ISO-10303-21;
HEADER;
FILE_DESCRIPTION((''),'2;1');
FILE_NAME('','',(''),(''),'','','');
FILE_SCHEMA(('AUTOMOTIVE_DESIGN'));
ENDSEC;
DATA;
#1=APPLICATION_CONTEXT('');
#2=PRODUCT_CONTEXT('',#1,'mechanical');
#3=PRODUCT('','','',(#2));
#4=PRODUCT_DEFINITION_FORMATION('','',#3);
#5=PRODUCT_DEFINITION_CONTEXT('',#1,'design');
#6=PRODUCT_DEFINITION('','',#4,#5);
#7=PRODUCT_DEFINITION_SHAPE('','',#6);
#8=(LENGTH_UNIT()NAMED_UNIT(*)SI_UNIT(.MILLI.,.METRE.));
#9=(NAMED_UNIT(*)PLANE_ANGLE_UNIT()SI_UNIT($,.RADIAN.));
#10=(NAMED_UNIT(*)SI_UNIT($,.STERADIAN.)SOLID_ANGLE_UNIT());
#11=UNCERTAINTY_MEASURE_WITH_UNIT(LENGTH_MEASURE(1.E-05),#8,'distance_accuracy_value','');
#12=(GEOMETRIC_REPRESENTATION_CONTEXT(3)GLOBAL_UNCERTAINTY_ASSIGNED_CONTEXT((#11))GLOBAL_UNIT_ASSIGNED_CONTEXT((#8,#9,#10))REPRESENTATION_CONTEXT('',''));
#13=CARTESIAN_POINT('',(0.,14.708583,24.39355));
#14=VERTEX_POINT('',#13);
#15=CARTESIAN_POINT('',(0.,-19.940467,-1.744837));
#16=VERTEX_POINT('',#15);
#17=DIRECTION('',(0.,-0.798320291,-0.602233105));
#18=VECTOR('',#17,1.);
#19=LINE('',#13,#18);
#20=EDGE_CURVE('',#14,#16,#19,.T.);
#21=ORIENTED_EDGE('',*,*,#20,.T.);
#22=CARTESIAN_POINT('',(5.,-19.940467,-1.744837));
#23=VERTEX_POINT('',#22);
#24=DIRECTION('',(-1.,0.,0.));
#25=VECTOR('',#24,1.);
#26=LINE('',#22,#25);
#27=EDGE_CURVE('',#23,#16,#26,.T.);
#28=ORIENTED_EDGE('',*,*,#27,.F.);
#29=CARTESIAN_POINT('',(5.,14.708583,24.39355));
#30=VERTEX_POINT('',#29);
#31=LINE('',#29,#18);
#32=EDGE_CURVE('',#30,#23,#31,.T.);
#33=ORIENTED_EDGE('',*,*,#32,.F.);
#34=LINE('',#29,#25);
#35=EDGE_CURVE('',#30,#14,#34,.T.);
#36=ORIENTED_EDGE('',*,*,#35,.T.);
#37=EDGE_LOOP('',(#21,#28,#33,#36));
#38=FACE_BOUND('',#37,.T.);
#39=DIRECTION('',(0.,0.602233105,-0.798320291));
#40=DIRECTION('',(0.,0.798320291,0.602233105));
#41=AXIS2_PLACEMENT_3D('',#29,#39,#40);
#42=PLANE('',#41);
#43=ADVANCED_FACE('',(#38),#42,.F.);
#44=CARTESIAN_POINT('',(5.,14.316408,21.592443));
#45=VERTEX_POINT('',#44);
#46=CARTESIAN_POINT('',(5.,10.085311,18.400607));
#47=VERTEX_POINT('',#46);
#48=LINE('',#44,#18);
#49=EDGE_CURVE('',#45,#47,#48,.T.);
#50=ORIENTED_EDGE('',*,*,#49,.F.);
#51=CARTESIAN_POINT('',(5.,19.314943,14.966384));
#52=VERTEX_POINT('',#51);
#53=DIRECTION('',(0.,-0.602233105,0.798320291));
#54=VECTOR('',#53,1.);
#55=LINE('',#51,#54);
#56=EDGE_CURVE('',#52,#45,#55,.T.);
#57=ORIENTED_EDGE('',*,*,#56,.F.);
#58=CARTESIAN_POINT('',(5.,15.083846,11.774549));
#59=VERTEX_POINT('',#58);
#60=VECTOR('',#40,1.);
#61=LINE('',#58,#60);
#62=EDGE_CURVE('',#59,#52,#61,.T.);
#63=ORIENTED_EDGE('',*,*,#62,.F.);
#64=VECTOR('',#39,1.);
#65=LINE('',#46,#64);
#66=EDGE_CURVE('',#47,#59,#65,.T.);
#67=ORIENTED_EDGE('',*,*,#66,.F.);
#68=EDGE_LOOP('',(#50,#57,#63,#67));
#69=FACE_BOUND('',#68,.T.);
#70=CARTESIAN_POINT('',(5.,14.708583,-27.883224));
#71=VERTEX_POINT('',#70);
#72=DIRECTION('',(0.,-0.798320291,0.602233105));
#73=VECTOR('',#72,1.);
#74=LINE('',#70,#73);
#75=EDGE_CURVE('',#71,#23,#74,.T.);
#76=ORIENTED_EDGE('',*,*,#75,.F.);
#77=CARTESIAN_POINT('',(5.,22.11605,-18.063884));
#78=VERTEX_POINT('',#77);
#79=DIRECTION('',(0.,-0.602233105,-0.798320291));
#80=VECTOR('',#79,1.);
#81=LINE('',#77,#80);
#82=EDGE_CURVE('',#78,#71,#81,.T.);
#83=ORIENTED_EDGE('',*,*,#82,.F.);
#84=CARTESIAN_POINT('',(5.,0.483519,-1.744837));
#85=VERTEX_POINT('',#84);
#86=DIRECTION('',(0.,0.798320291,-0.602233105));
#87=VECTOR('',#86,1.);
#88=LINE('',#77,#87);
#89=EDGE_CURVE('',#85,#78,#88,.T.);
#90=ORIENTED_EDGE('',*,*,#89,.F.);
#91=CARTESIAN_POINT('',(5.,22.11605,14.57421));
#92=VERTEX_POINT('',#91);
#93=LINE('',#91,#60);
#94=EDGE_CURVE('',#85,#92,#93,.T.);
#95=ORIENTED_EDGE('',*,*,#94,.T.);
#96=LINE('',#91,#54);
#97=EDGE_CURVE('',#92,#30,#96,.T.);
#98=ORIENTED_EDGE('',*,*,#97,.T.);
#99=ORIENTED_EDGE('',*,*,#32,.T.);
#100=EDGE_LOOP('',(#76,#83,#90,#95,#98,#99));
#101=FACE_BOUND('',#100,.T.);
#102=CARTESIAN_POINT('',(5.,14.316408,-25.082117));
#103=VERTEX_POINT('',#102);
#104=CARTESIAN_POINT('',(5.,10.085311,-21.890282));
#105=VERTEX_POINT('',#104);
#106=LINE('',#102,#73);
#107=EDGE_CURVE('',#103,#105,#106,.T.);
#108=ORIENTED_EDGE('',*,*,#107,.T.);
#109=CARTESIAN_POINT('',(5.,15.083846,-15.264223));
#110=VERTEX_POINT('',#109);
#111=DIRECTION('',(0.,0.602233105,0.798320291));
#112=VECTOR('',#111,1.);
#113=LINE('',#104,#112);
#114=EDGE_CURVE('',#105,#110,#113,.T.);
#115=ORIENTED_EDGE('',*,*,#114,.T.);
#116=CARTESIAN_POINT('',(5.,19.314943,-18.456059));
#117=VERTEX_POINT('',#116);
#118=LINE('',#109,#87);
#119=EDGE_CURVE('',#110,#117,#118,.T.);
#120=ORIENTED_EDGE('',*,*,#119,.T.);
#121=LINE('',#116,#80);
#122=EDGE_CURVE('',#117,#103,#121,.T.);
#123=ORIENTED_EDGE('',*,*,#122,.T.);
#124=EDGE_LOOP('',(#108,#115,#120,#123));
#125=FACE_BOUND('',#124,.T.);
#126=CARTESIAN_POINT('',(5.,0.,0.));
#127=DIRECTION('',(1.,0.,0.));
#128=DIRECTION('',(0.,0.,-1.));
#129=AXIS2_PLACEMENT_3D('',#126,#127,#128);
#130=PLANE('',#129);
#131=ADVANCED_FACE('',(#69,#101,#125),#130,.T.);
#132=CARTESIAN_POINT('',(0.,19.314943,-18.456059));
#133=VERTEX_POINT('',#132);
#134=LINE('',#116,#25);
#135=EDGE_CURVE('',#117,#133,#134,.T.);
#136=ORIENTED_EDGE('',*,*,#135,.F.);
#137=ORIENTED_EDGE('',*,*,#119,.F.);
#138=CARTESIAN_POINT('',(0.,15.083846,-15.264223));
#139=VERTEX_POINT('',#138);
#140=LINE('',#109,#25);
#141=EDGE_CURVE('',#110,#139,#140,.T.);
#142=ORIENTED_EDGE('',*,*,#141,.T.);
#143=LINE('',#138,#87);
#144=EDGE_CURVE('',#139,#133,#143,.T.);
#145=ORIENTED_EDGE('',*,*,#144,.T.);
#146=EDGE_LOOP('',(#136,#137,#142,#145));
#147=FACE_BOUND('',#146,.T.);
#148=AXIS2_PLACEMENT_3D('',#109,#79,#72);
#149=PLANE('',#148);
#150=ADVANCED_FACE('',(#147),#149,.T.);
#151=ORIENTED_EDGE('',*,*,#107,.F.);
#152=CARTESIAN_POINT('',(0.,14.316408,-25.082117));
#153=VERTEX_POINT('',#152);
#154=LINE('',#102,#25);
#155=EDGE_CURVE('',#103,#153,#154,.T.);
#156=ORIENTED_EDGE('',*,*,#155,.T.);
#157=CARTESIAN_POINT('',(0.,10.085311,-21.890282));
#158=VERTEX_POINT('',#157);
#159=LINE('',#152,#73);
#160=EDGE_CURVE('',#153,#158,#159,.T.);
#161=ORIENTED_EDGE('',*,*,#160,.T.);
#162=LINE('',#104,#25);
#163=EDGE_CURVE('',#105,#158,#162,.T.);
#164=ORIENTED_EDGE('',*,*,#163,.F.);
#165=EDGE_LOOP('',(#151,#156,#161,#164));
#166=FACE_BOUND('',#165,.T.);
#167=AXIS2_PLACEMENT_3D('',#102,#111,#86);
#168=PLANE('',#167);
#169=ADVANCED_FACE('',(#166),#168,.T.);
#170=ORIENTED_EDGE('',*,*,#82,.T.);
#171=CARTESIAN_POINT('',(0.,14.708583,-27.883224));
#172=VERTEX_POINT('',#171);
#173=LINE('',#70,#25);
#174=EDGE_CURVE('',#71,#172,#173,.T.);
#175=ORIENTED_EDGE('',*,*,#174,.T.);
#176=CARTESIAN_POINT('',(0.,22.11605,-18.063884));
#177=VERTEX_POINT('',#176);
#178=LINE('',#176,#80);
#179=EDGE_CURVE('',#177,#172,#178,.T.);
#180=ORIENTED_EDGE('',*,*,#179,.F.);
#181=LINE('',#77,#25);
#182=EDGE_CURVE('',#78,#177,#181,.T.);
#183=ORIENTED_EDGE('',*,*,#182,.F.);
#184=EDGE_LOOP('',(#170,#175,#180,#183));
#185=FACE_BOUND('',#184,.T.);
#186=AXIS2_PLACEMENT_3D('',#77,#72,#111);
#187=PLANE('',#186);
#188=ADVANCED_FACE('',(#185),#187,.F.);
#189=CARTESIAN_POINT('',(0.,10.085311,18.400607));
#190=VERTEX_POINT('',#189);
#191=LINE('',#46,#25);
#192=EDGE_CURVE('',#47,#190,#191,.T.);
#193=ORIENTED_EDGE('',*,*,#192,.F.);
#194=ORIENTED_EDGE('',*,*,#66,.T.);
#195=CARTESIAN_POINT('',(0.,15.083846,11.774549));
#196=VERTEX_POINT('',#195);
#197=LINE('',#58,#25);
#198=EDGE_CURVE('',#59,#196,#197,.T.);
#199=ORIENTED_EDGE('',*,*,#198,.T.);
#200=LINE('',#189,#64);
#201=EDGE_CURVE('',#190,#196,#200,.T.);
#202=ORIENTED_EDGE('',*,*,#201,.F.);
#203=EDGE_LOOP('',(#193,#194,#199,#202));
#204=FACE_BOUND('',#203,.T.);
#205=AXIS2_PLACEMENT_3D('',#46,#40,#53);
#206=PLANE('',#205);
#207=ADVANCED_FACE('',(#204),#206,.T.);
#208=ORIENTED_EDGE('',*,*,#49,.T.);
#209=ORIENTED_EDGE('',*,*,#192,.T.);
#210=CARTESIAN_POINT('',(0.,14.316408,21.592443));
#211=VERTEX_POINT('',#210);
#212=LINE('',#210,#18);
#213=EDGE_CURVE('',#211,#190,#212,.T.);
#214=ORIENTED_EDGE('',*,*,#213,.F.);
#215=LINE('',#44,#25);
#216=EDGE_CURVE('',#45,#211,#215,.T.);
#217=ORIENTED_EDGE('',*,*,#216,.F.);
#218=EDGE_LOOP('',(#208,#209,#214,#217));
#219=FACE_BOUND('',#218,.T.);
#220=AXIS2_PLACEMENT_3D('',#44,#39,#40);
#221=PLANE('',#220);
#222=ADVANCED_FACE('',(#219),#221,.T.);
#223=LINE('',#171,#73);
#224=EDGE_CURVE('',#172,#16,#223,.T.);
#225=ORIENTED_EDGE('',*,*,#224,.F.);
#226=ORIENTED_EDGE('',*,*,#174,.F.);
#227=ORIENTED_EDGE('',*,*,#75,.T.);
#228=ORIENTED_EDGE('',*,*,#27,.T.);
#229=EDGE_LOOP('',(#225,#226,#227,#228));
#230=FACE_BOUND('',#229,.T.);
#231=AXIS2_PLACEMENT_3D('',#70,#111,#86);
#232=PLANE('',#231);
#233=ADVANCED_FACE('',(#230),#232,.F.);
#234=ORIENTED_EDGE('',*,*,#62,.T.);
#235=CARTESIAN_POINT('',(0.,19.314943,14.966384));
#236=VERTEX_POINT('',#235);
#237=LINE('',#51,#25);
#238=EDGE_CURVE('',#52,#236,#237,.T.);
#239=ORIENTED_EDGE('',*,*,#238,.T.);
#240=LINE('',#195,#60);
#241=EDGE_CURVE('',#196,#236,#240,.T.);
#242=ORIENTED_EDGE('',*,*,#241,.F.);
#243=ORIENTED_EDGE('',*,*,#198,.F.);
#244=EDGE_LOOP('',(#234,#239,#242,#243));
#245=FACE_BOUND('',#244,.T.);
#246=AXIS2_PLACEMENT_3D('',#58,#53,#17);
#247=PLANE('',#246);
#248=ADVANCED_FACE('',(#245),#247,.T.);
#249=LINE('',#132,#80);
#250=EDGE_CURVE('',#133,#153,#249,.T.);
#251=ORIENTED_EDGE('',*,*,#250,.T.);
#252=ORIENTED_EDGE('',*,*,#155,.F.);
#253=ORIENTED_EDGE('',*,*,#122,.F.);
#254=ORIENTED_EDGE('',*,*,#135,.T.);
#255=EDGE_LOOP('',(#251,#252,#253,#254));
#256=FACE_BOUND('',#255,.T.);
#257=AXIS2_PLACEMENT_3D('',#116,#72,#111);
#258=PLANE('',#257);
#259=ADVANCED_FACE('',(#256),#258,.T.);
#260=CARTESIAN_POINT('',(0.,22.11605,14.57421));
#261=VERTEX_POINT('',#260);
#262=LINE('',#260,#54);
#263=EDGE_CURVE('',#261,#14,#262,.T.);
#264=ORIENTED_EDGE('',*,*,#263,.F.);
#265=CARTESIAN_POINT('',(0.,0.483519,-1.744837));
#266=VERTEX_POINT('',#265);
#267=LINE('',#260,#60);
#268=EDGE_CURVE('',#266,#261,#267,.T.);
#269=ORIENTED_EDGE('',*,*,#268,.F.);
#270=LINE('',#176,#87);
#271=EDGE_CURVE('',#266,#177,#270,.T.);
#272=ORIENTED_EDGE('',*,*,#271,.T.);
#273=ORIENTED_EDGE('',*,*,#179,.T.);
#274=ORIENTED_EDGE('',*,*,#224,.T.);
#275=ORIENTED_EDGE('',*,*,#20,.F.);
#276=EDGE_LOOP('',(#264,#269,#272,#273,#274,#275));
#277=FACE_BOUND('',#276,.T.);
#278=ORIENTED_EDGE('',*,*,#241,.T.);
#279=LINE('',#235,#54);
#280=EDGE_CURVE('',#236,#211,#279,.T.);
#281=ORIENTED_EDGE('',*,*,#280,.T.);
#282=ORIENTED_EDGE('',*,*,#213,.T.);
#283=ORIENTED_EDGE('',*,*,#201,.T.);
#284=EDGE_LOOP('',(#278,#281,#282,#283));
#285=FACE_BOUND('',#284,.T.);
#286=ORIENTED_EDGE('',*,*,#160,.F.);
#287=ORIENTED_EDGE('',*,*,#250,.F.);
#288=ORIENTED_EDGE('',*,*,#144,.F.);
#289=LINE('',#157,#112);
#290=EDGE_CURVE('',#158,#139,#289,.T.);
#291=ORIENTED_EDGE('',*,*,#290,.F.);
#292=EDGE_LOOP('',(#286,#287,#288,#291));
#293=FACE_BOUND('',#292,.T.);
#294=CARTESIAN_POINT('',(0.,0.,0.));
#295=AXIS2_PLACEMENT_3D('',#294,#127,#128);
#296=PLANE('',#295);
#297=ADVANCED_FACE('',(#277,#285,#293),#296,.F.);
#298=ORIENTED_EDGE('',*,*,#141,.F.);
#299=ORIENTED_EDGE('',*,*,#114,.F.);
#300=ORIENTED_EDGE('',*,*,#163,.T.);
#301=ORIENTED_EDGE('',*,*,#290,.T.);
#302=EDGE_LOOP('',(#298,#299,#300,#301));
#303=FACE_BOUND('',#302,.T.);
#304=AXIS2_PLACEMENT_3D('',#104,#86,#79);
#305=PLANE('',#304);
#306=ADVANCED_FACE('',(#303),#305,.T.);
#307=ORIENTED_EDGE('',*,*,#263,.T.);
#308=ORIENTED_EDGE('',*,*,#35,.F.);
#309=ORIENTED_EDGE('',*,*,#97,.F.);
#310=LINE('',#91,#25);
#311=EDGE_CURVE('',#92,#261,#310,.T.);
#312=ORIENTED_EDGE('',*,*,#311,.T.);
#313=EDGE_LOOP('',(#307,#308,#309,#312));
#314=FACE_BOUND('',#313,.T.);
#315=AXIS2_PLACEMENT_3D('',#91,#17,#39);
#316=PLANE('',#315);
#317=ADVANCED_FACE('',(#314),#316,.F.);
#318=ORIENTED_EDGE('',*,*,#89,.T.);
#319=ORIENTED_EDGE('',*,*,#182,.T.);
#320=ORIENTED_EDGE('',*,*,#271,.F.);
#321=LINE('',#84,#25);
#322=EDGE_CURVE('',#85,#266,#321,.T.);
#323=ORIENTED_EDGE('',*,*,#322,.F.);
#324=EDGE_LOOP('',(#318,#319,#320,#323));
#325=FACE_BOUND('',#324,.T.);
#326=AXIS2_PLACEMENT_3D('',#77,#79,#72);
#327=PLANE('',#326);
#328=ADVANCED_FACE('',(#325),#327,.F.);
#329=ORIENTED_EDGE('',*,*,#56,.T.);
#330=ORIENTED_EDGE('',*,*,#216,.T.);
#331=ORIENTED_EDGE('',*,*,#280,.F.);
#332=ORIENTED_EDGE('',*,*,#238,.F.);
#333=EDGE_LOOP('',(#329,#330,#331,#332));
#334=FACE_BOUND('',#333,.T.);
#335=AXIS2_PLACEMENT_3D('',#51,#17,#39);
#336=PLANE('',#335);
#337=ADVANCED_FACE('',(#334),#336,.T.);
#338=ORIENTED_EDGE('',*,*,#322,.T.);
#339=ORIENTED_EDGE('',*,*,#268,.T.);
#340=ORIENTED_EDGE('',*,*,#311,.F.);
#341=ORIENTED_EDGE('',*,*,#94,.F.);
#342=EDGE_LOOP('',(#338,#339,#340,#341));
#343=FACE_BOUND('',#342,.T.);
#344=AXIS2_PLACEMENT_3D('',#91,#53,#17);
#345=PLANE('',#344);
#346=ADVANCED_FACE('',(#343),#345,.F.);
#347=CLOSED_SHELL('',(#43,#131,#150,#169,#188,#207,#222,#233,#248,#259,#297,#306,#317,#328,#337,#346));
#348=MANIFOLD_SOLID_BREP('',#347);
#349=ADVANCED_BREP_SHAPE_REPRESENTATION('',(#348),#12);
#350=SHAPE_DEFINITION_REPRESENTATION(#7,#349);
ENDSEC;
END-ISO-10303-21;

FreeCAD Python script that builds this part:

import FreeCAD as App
import Part
import Sketcher
Q = App.Units.Quantity

doc = App.newDocument("Part")
body = doc.addObject("PartDesign::Body", "Body")

# Sketch on YZ plane
sketch1 = body.newObject("Sketcher::SketchObject", "Sketch")
sketch1.AttachmentSupport = (doc.getObject("YZ_Plane"), [""])
sketch1.MapMode = "FlatFace"
sketch1.addGeometry(Part.LineSegment(App.Vector(0, -2, 0), App.Vector(22, 15, 0)), False)
sketch1.addGeometry(Part.LineSegment(App.Vector(22, 15, 0), App.Vector(15, 24, 0)), False)
sketch1.addGeometry(Part.LineSegment(App.Vector(15, 24, 0), App.Vector(-20, -2, 0)), False)
sketch1.addGeometry(Part.LineSegment(App.Vector(-20, -2, 0), App.Vector(0, -2, 0)), False)
sketch1.addConstraint(Sketcher.Constraint("Coincident", 0, 2, 1, 1))
sketch1.addConstraint(Sketcher.Constraint("Coincident", 1, 2, 2, 1))
sketch1.addConstraint(Sketcher.Constraint("Coincident", 2, 2, 3, 1))
sketch1.addConstraint(Sketcher.Constraint("Coincident", 3, 2, 0, 1))
sketch1.addConstraint(Sketcher.Constraint("Horizontal", 3))
sketch1.addConstraint(Sketcher.Constraint("Perpendicular", 0, 1))
sketch1.addConstraint(Sketcher.Constraint("Perpendicular", 1, 2))
sketch1.addConstraint(Sketcher.Constraint("Distance", 1, Q("12.3 mm")))
sketch1.addConstraint(Sketcher.Constraint("Angle", 0, Q("37.03 deg")))
sketch1.addConstraint(Sketcher.Constraint("Distance", 0, Q("27.097559 mm")))
sketch1.addConstraint(Sketcher.Constraint("DistanceX", -1, 1, 0, 2, Q("22.11605 mm")))
sketch1.addConstraint(Sketcher.Constraint("DistanceY", -1, 1, 0, 2, Q("14.57421 mm")))
pad1 = body.newObject("PartDesign::Pad", "Pad")
pad1.Profile = sketch1
pad1.Length = 5

# Sketch on YZ plane
sketch2 = body.newObject("Sketcher::SketchObject", "Sketch001")
sketch2.AttachmentSupport = (doc.getObject("YZ_Plane"), [""])
sketch2.MapMode = "FlatFace"
sketch2.addGeometry(Part.LineSegment(App.Vector(10, 18, 0), App.Vector(15, 12, 0)), False)
sketch2.addGeometry(Part.LineSegment(App.Vector(15, 12, 0), App.Vector(19, 15, 0)), False)
sketch2.addGeometry(Part.LineSegment(App.Vector(19, 15, 0), App.Vector(14, 22, 0)), False)
sketch2.addGeometry(Part.LineSegment(App.Vector(14, 22, 0), App.Vector(10, 18, 0)), False)
sketch2.addConstraint(Sketcher.Constraint("Coincident", 0, 2, 1, 1))
sketch2.addConstraint(Sketcher.Constraint("Coincident", 1, 2, 2, 1))
sketch2.addConstraint(Sketcher.Constraint("Coincident", 2, 2, 3, 1))
sketch2.addConstraint(Sketcher.Constraint("Coincident", 3, 2, 0, 1))
sketch2.addConstraint(Sketcher.Constraint("Perpendicular", 0, 1))
sketch2.addConstraint(Sketcher.Constraint("Perpendicular", 1, 2))
sketch2.addConstraint(Sketcher.Constraint("Perpendicular", 2, 3))
sketch2.addConstraint(Sketcher.Constraint("Distance", 0, Q("8.3 mm")))
sketch2.addConstraint(Sketcher.Constraint("Distance", 1, Q("5.3 mm")))
sketch2.addConstraint(Sketcher.Constraint("Angle", 0, Q("-52.97 deg")))
sketch2.addConstraint(Sketcher.Constraint("DistanceY", -1, 1, 0, 2, Q("11.774549 mm")))
sketch2.addConstraint(Sketcher.Constraint("DistanceX", -1, 1, 2, 2, Q("14.316408 mm")))
pocket1 = body.newObject("PartDesign::Pocket", "Pocket")
pocket1.Profile = sketch2
pocket1.Length = 5
pocket1.Reversed = True
body2 = doc.addObject("PartDesign::Body", "Body001")
doc.recompute()

body2.BaseFeature = body
doc.recompute()

mirroring = doc.addObject("Part::Mirroring", "Mirroring")
mirroring.Source = body
mirroring.Base = App.Vector(5, 0.483519, -1.744837)
mirroring.Normal = App.Vector(0, 0, 1)
body3 = doc.addObject("PartDesign::Body", "Body002")
body3.BaseFeature = mirroring
boolean = body2.newObject("PartDesign::Boolean", "Boolean")
boolean.Type = "Fuse"
boolean.addObjects([body3])
doc.recompute()
mirroring.Visibility = False

doc.recompute()
